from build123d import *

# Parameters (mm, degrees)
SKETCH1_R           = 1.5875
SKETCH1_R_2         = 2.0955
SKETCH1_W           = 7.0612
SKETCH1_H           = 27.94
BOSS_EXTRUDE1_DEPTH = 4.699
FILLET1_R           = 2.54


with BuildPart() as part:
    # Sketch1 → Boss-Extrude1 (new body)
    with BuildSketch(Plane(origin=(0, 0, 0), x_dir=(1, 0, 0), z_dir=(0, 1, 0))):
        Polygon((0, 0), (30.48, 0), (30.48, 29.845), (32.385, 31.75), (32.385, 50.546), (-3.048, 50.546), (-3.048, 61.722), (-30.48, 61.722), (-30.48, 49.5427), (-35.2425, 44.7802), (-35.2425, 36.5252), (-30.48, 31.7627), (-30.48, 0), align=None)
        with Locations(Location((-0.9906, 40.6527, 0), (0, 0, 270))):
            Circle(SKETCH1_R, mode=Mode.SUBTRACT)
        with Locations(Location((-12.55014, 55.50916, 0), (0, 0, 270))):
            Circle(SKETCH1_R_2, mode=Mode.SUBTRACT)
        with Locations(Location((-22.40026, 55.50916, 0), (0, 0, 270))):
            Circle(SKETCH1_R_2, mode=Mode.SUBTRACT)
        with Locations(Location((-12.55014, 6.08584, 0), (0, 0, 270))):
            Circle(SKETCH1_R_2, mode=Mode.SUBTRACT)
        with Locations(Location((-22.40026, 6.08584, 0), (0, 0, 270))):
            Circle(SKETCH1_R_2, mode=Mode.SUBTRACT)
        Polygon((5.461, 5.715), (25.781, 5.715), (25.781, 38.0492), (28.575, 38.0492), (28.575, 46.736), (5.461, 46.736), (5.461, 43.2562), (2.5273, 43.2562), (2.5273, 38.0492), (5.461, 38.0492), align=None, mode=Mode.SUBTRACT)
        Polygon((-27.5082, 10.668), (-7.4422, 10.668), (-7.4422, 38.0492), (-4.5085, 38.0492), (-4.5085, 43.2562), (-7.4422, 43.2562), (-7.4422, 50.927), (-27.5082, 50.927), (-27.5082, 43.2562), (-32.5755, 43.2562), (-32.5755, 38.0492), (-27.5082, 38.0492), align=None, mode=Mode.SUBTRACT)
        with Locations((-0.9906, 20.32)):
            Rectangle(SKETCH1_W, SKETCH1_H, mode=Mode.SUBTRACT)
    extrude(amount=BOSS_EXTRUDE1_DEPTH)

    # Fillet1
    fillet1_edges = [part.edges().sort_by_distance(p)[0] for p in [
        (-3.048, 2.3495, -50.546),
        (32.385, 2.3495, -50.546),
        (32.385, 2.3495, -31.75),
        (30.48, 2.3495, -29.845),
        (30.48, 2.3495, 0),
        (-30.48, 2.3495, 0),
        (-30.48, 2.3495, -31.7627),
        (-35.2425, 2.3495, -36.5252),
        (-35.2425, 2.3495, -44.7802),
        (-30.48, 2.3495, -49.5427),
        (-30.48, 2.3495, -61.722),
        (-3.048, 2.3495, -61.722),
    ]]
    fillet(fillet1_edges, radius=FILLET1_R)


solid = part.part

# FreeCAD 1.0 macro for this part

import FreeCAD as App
import Part
import Sketcher
from FreeCAD import Vector
Q = App.Units.Quantity


def edges_at(feature, points):
    """Names of the edges that pass closest to the given points."""
    edges = feature.Shape.Edges
    near = lambda p: min(range(len(edges)), key=lambda i: edges[i].distToShape(Part.Vertex(*p))[0])
    return sorted({f"Edge{near(p) + 1}" for p in points})

doc = App.newDocument("Part")
body = doc.addObject("PartDesign::Body", "Body")

# Sketch on XZ plane
sketch1 = body.newObject("Sketcher::SketchObject", "Sketch")
sketch1.AttachmentSupport = (doc.getObject("XZ_Plane"), [""])
sketch1.MapMode = "FlatFace"
sketch1.addGeometry([
    Part.LineSegment(Vector(30.48, 0, 0), Vector(30.48, -29.845, 0)),  # 0
    Part.LineSegment(Vector(30.48, -29.845, 0), Vector(32.385, -31.75, 0)),  # 1
    Part.LineSegment(Vector(32.385, -31.75, 0), Vector(32.385, -50.546, 0)),  # 2
    Part.LineSegment(Vector(32.385, -50.546, 0), Vector(-3.048, -50.546, 0)),  # 3
    Part.LineSegment(Vector(-3.048, -50.546, 0), Vector(-3.048, -61.722, 0)),  # 4
    Part.LineSegment(Vector(-3.048, -61.722, 0), Vector(-30.48, -61.722, 0)),  # 5
    Part.LineSegment(Vector(-30.48, -61.722, 0), Vector(-30.48, -49.5427, 0)),  # 6
    Part.LineSegment(Vector(-30.48, -49.5427, 0), Vector(-35.2425, -44.7802, 0)),  # 7
    Part.LineSegment(Vector(-35.2425, -44.7802, 0), Vector(-35.2425, -36.5252, 0)),  # 8
    Part.LineSegment(Vector(-35.2425, -36.5252, 0), Vector(-30.48, -31.7627, 0)),  # 9
    Part.LineSegment(Vector(-30.48, -31.7627, 0), Vector(-30.48, 0, 0)),  # 10
    Part.LineSegment(Vector(-30.48, 0, 0), Vector(30.48, 0, 0)),  # 11
    Part.Circle(Vector(-22.40026, -6.08584, 0), Vector(0, 0, 1), 2.0955),  # 12
    Part.Circle(Vector(-12.55014, -6.08584, 0), Vector(0, 0, 1), 2.0955),  # 13
    Part.LineSegment(Vector(-7.4422, -10.668, 0), Vector(-27.5082, -10.668, 0)),  # 14
    Part.LineSegment(Vector(-27.5082, -10.668, 0), Vector(-27.5082, -38.0492, 0)),  # 15
    Part.LineSegment(Vector(-27.5082, -38.0492, 0), Vector(-32.5755, -38.0492, 0)),  # 16
    Part.LineSegment(Vector(-32.5755, -38.0492, 0), Vector(-32.5755, -43.2562, 0)),  # 17
    Part.LineSegment(Vector(-32.5755, -43.2562, 0), Vector(-27.5082, -43.2562, 0)),  # 18
    Part.LineSegment(Vector(-27.5082, -43.2562, 0), Vector(-27.5082, -50.927, 0)),  # 19
    Part.LineSegment(Vector(-27.5082, -50.927, 0), Vector(-7.4422, -50.927, 0)),  # 20
    Part.LineSegment(Vector(-7.4422, -50.927, 0), Vector(-7.4422, -43.2562, 0)),  # 21
    Part.LineSegment(Vector(-7.4422, -43.2562, 0), Vector(-4.5085, -43.2562, 0)),  # 22
    Part.LineSegment(Vector(-4.5085, -43.2562, 0), Vector(-4.5085, -38.0492, 0)),  # 23
    Part.LineSegment(Vector(-4.5085, -38.0492, 0), Vector(-7.4422, -38.0492, 0)),  # 24
    Part.LineSegment(Vector(-7.4422, -38.0492, 0), Vector(-7.4422, -10.668, 0)),  # 25
    Part.LineSegment(Vector(2.54, -6.35, 0), Vector(-4.5212, -6.35, 0)),  # 26
    Part.LineSegment(Vector(-4.5212, -6.35, 0), Vector(-4.5212, -34.29, 0)),  # 27
    Part.LineSegment(Vector(-4.5212, -34.29, 0), Vector(2.54, -34.29, 0)),  # 28
    Part.LineSegment(Vector(2.54, -34.29, 0), Vector(2.54, -6.35, 0)),  # 29
    Part.LineSegment(Vector(25.781, -5.715, 0), Vector(5.461, -5.715, 0)),  # 30
    Part.LineSegment(Vector(5.461, -5.715, 0), Vector(5.461, -38.0492, 0)),  # 31
    Part.LineSegment(Vector(5.461, -38.0492, 0), Vector(2.5273, -38.0492, 0)),  # 32
    Part.LineSegment(Vector(2.5273, -38.0492, 0), Vector(2.5273, -43.2562, 0)),  # 33
    Part.LineSegment(Vector(2.5273, -43.2562, 0), Vector(5.461, -43.2562, 0)),  # 34
    Part.LineSegment(Vector(5.461, -43.2562, 0), Vector(5.461, -46.736, 0)),  # 35
    Part.LineSegment(Vector(5.461, -46.736, 0), Vector(28.575, -46.736, 0)),  # 36
    Part.LineSegment(Vector(28.575, -46.736, 0), Vector(28.575, -38.0492, 0)),  # 37
    Part.LineSegment(Vector(28.575, -38.0492, 0), Vector(25.781, -38.0492, 0)),  # 38
    Part.LineSegment(Vector(25.781, -38.0492, 0), Vector(25.781, -5.715, 0)),  # 39
    Part.Circle(Vector(-22.40026, -55.50916, 0), Vector(0, 0, 1), 2.0955),  # 40
    Part.Circle(Vector(-12.55014, -55.50916, 0), Vector(0, 0, 1), 2.0955),  # 41
    Part.Circle(Vector(-0.9906, -40.6527, 0), Vector(0, 0, 1), 1.5875),  # 42
], False)
sketch1.addConstraint([
    Sketcher.Constraint("Coincident", 0, 2, 1, 1),
    Sketcher.Constraint("Coincident", 1, 2, 2, 1),
    Sketcher.Constraint("Coincident", 2, 2, 3, 1),
    Sketcher.Constraint("Coincident", 3, 2, 4, 1),
    Sketcher.Constraint("Coincident", 4, 2, 5, 1),
    Sketcher.Constraint("Coincident", 5, 2, 6, 1),
    Sketcher.Constraint("Coincident", 6, 2, 7, 1),
    Sketcher.Constraint("Coincident", 7, 2, 8, 1),
    Sketcher.Constraint("Coincident", 8, 2, 9, 1),
    Sketcher.Constraint("Coincident", 9, 2, 10, 1),
    Sketcher.Constraint("Coincident", 10, 2, 11, 1),
    Sketcher.Constraint("Coincident", 11, 2, 0, 1),
    Sketcher.Constraint("Coincident", 14, 2, 15, 1),
    Sketcher.Constraint("Coincident", 15, 2, 16, 1),
    Sketcher.Constraint("Coincident", 16, 2, 17, 1),
    Sketcher.Constraint("Coincident", 17, 2, 18, 1),
    Sketcher.Constraint("Coincident", 18, 2, 19, 1),
    Sketcher.Constraint("Coincident", 19, 2, 20, 1),
    Sketcher.Constraint("Coincident", 20, 2, 21, 1),
    Sketcher.Constraint("Coincident", 21, 2, 22, 1),
    Sketcher.Constraint("Coincident", 22, 2, 23, 1),
    Sketcher.Constraint("Coincident", 23, 2, 24, 1),
    Sketcher.Constraint("Coincident", 24, 2, 25, 1),
    Sketcher.Constraint("Coincident", 25, 2, 14, 1),
    Sketcher.Constraint("Coincident", 26, 2, 27, 1),
    Sketcher.Constraint("Coincident", 27, 2, 28, 1),
    Sketcher.Constraint("Coincident", 28, 2, 29, 1),
    Sketcher.Constraint("Coincident", 29, 2, 26, 1),
    Sketcher.Constraint("Coincident", 30, 2, 31, 1),
    Sketcher.Constraint("Coincident", 31, 2, 32, 1),
    Sketcher.Constraint("Coincident", 32, 2, 33, 1),
    Sketcher.Constraint("Coincident", 33, 2, 34, 1),
    Sketcher.Constraint("Coincident", 34, 2, 35, 1),
    Sketcher.Constraint("Coincident", 35, 2, 36, 1),
    Sketcher.Constraint("Coincident", 36, 2, 37, 1),
    Sketcher.Constraint("Coincident", 37, 2, 38, 1),
    Sketcher.Constraint("Coincident", 38, 2, 39, 1),
    Sketcher.Constraint("Coincident", 39, 2, 30, 1),
    Sketcher.Constraint("Vertical", 0),
    Sketcher.Constraint("Vertical", 2),
    Sketcher.Constraint("Horizontal", 3),
    Sketcher.Constraint("Vertical", 4),
    Sketcher.Constraint("Horizontal", 5),
    Sketcher.Constraint("Vertical", 6),
    Sketcher.Constraint("Vertical", 8),
    Sketcher.Constraint("Vertical", 10),
    Sketcher.Constraint("Horizontal", 11),
    Sketcher.Constraint("Horizontal", 14),
    Sketcher.Constraint("Vertical", 15),
    Sketcher.Constraint("Horizontal", 16),
    Sketcher.Constraint("Vertical", 17),
    Sketcher.Constraint("Horizontal", 18),
    Sketcher.Constraint("Vertical", 19),
    Sketcher.Constraint("Horizontal", 20),
    Sketcher.Constraint("Vertical", 21),
    Sketcher.Constraint("Horizontal", 22),
    Sketcher.Constraint("Vertical", 23),
    Sketcher.Constraint("Horizontal", 24),
    Sketcher.Constraint("Vertical", 25),
    Sketcher.Constraint("Horizontal", 26),
    Sketcher.Constraint("Vertical", 27),
    Sketcher.Constraint("Horizontal", 28),
    Sketcher.Constraint("Vertical", 29),
    Sketcher.Constraint("Horizontal", 30),
    Sketcher.Constraint("Vertical", 31),
    Sketcher.Constraint("Horizontal", 32),
    Sketcher.Constraint("Vertical", 33),
    Sketcher.Constraint("Horizontal", 34),
    Sketcher.Constraint("Vertical", 35),
    Sketcher.Constraint("Horizontal", 36),
    Sketcher.Constraint("Vertical", 37),
    Sketcher.Constraint("Horizontal", 38),
    Sketcher.Constraint("Vertical", 39),
    Sketcher.Constraint("Equal", 12, 13),
    Sketcher.Constraint("Equal", 13, 40),
    Sketcher.Constraint("Equal", 40, 41),
    Sketcher.Constraint("Symmetric", 10, 2, 11, 2, -1, 1),
    Sketcher.Constraint("Parallel", 1, 7),
    Sketcher.Constraint("Perpendicular", 7, 9),
    Sketcher.Constraint("Horizontal", 12, 3, 13, 3),
    Sketcher.Constraint("Horizontal", 40, 3, 41, 3),
    Sketcher.Constraint("Horizontal", 18, 2, 21, 2),
    Sketcher.Constraint("Horizontal", 16, 2, 23, 2),
    Sketcher.Constraint("Horizontal", 24, 2, 31, 2),
    Sketcher.Constraint("Horizontal", 22, 2, 33, 2),
    Sketcher.Constraint("Horizontal", 32, 2, 37, 2),
    Sketcher.Constraint("Vertical", 12, 3, 40, 3),
    Sketcher.Constraint("Vertical", 13, 3, 41, 3),
    Sketcher.Constraint("Vertical", 6, 2, 9, 2),
    Sketcher.Constraint("Vertical", 15, 2, 18, 2),
    Sketcher.Constraint("Vertical", 21, 2, 24, 2),
    Sketcher.Constraint("Vertical", 31, 2, 34, 2),
    Sketcher.Constraint("Equal", 24, 32),
    Sketcher.Constraint("Equal", 7, 9),
    Sketcher.Constraint("Diameter", 12, Q("0.165 in")),
    Sketcher.Constraint("Diameter", 42, Q("0.125 in")),
    Sketcher.Constraint("DistanceX", 11, 1, 11, 2, Q("2.4 in")),
    Sketcher.Constraint("DistanceX", 30, 2, 30, 1, Q("0.8 in")),
    Sketcher.Constraint("DistanceY", 27, 2, 27, 1, Q("1.1 in")),
    Sketcher.Constraint("DistanceX", 5, 2, 5, 1, Q("1.08 in")),
    Sketcher.Constraint("DistanceX", 14, 2, 14, 1, Q("0.79 in")),
    Sketcher.Constraint("DistanceX", 36, 1, 36, 2, Q("0.91 in")),
    Sketcher.Constraint("DistanceY", 2, 2, 2, 1, Q("0.74 in")),
    Sketcher.Constraint("DistanceY", 4, 2, 4, 1, Q("0.44 in")),
    Sketcher.Constraint("DistanceX", -1, 1, 28, 2, Q("0.1 in")),
    Sketcher.Constraint("DistanceY", 6, 2, 9, 2, Q("0.7 in")),
    Sketcher.Constraint("DistanceX", 3, 2, 3, 1, Q("1.395 in")),
    Sketcher.Constraint("DistanceX", 26, 2, 26, 1, Q("0.278 in")),
    Sketcher.Constraint("DistanceY", 0, 2, 0, 1, Q("1.175 in")),
    Sketcher.Constraint("DistanceY", 8, 1, 8, 2, Q("0.325 in")),
    Sketcher.Constraint("DistanceY", 15, 2, 15, 1, Q("1.078 in")),
    Sketcher.Constraint("DistanceY", 17, 2, 17, 1, Q("0.205 in")),
    Sketcher.Constraint("DistanceY", 19, 2, 19, 1, Q("0.302 in")),
    Sketcher.Constraint("DistanceY", 31, 2, 31, 1, Q("1.273 in")),
    Sketcher.Constraint("DistanceY", 35, 2, 35, 1, Q("0.137 in")),
    Sketcher.Constraint("DistanceY", 14, 2, -1, 1, Q("0.42 in")),
    Sketcher.Constraint("DistanceY", 26, 2, -1, 1, Q("0.25 in")),
    Sketcher.Constraint("DistanceY", 15, 2, 8, 2, Q("0.06 in")),
    Sketcher.Constraint("DistanceX", 36, 2, 2, 2, Q("0.15 in")),
    Sketcher.Constraint("DistanceX", 16, 2, 16, 1, Q("0.1995 in")),
    Sketcher.Constraint("DistanceX", 22, 1, 22, 2, Q("0.1155 in")),
    Sketcher.Constraint("DistanceX", 42, 3, -1, 1, Q("0.039 in")),
    Sketcher.Constraint("DistanceX", 14, 2, -1, 1, Q("1.083 in")),
    Sketcher.Constraint("DistanceX", 12, 3, -1, 1, Q("0.8819 in")),
    Sketcher.Constraint("DistanceY", 12, 3, -1, 1, Q("0.2396 in")),
    Sketcher.Constraint("DistanceX", 13, 3, -1, 1, Q("0.4941 in")),
    Sketcher.Constraint("DistanceY", 40, 3, -1, 1, Q("2.1854 in")),
    Sketcher.Constraint("DistanceY", 42, 3, -1, 1, Q("1.6005 in")),
])
pad1 = body.newObject("PartDesign::Pad", "Pad")
pad1.Profile = sketch1
pad1.Length = Q("0.185 in")
pad1.Reversed = True
doc.recompute()

fillet = body.newObject("PartDesign::Fillet", "Fillet")
fillet.Base = (pad1, edges_at(pad1, [
    (-3.048, 2.349, -50.546),
    (32.385, 2.349, -50.546),
    (32.385, 2.349, -31.75),
    (30.48, 2.349, -29.845),
    (30.48, 2.349, 0),
    (-30.48, 2.349, 0),
    (-30.48, 2.349, -31.763),
    (-35.242, 2.349, -36.525),
    (-35.242, 2.349, -44.78),
    (-30.48, 2.349, -49.543),
    (-30.48, 2.349, -61.722),
    (-3.048, 2.349, -61.722),
]))
fillet.Radius = Q("0.1 in")

doc.recompute()
